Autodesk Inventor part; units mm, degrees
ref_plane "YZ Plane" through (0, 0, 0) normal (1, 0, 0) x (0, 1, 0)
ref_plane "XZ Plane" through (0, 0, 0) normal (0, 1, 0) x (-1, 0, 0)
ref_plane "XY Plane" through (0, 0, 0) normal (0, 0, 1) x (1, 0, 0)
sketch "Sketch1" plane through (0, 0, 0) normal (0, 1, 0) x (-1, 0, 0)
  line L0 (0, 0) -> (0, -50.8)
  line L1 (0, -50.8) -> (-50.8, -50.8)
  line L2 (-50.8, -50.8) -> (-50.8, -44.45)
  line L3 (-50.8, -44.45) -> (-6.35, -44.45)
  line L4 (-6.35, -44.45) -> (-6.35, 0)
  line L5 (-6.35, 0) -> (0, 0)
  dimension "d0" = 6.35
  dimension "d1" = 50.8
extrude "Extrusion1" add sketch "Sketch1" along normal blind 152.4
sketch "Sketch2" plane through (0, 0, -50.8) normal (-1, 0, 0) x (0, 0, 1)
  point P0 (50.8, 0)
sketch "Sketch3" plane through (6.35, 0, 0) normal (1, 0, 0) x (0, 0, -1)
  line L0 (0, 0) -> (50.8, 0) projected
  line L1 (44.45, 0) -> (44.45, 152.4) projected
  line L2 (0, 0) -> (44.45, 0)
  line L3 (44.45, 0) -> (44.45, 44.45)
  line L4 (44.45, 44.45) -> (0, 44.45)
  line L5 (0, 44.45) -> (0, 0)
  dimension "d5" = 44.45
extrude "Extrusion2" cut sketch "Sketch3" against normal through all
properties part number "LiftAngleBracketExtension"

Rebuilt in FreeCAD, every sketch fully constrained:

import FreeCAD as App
import Part
import Sketcher
Q = App.Units.Quantity


def add_polygon(sketch, points):
    """Adds a closed chain of lines whose ends are joined by coincident constraints."""
    first, n = sketch.GeometryCount, len(points)
    for a, b in zip(points, points[1:] + points[:1]):
        sketch.addGeometry(Part.LineSegment(App.Vector(*a, 0), App.Vector(*b, 0)), False)
    for i in range(n):
        sketch.addConstraint(Sketcher.Constraint("Coincident", first + i, 2, first + (i + 1) % n, 1))

doc = App.newDocument("Part")
body = doc.addObject("PartDesign::Body", "Body")

sketch1 = doc.addObject("Sketcher::SketchObject", "Sketch")
body.addObject(sketch1)
sketch1.AttachmentSupport = (doc.XZ_Plane, [""])
sketch1.MapMode = "FlatFace"
add_polygon(sketch1, [(0, -51), (0, 0), (6, 0), (6, -44), (51, -44), (51, -51)])
sketch1.addConstraint([
    Sketcher.Constraint("Vertical", 0),
    Sketcher.Constraint("Horizontal", 1),
    Sketcher.Constraint("Vertical", 2),
    Sketcher.Constraint("Horizontal", 3),
    Sketcher.Constraint("Vertical", 4),
    Sketcher.Constraint("Horizontal", 5),
    Sketcher.Constraint("Coincident", 0, 2, -1, 1),
    Sketcher.Constraint("Equal", 5, 0),
    Sketcher.Constraint("Equal", 3, 2),
    Sketcher.Constraint("DistanceX", 5, 2, 5, 1, Q("2 in")),
    Sketcher.Constraint("DistanceX", 1, 1, 1, 2, Q("0.25 in")),
])
pad1 = doc.addObject("PartDesign::Pad", "Pad")
body.addObject(pad1)
pad1.Profile = sketch1
pad1.Length = Q("6 in")
pad1.Reversed = True

sketch2 = doc.addObject("Sketcher::SketchObject", "Sketch001")
body.addObject(sketch2)
sketch2.AttachmentSupport = (doc.YZ_Plane, [""])
sketch2.MapMode = "FlatFace"
sketch2.AttachmentOffset = App.Placement(App.Vector(0, 0, 0.25 * 25.4), App.Rotation())
add_polygon(sketch2, [(44, 0), (0, 0), (0, -44), (44, -44)])
sketch2.addConstraint([
    Sketcher.Constraint("Horizontal", 0),
    Sketcher.Constraint("Vertical", 1),
    Sketcher.Constraint("Horizontal", 2),
    Sketcher.Constraint("Vertical", 3),
    Sketcher.Constraint("Coincident", 0, 2, -1, 1),
    Sketcher.Constraint("Equal", 2, 1),
    Sketcher.Constraint("DistanceX", 0, 2, 0, 1, Q("1.75 in")),
])
pocket1 = doc.addObject("PartDesign::Pocket", "Pocket")
body.addObject(pocket1)
pocket1.Profile = sketch2
pocket1.Type = "ThroughAll"

doc.recompute()
